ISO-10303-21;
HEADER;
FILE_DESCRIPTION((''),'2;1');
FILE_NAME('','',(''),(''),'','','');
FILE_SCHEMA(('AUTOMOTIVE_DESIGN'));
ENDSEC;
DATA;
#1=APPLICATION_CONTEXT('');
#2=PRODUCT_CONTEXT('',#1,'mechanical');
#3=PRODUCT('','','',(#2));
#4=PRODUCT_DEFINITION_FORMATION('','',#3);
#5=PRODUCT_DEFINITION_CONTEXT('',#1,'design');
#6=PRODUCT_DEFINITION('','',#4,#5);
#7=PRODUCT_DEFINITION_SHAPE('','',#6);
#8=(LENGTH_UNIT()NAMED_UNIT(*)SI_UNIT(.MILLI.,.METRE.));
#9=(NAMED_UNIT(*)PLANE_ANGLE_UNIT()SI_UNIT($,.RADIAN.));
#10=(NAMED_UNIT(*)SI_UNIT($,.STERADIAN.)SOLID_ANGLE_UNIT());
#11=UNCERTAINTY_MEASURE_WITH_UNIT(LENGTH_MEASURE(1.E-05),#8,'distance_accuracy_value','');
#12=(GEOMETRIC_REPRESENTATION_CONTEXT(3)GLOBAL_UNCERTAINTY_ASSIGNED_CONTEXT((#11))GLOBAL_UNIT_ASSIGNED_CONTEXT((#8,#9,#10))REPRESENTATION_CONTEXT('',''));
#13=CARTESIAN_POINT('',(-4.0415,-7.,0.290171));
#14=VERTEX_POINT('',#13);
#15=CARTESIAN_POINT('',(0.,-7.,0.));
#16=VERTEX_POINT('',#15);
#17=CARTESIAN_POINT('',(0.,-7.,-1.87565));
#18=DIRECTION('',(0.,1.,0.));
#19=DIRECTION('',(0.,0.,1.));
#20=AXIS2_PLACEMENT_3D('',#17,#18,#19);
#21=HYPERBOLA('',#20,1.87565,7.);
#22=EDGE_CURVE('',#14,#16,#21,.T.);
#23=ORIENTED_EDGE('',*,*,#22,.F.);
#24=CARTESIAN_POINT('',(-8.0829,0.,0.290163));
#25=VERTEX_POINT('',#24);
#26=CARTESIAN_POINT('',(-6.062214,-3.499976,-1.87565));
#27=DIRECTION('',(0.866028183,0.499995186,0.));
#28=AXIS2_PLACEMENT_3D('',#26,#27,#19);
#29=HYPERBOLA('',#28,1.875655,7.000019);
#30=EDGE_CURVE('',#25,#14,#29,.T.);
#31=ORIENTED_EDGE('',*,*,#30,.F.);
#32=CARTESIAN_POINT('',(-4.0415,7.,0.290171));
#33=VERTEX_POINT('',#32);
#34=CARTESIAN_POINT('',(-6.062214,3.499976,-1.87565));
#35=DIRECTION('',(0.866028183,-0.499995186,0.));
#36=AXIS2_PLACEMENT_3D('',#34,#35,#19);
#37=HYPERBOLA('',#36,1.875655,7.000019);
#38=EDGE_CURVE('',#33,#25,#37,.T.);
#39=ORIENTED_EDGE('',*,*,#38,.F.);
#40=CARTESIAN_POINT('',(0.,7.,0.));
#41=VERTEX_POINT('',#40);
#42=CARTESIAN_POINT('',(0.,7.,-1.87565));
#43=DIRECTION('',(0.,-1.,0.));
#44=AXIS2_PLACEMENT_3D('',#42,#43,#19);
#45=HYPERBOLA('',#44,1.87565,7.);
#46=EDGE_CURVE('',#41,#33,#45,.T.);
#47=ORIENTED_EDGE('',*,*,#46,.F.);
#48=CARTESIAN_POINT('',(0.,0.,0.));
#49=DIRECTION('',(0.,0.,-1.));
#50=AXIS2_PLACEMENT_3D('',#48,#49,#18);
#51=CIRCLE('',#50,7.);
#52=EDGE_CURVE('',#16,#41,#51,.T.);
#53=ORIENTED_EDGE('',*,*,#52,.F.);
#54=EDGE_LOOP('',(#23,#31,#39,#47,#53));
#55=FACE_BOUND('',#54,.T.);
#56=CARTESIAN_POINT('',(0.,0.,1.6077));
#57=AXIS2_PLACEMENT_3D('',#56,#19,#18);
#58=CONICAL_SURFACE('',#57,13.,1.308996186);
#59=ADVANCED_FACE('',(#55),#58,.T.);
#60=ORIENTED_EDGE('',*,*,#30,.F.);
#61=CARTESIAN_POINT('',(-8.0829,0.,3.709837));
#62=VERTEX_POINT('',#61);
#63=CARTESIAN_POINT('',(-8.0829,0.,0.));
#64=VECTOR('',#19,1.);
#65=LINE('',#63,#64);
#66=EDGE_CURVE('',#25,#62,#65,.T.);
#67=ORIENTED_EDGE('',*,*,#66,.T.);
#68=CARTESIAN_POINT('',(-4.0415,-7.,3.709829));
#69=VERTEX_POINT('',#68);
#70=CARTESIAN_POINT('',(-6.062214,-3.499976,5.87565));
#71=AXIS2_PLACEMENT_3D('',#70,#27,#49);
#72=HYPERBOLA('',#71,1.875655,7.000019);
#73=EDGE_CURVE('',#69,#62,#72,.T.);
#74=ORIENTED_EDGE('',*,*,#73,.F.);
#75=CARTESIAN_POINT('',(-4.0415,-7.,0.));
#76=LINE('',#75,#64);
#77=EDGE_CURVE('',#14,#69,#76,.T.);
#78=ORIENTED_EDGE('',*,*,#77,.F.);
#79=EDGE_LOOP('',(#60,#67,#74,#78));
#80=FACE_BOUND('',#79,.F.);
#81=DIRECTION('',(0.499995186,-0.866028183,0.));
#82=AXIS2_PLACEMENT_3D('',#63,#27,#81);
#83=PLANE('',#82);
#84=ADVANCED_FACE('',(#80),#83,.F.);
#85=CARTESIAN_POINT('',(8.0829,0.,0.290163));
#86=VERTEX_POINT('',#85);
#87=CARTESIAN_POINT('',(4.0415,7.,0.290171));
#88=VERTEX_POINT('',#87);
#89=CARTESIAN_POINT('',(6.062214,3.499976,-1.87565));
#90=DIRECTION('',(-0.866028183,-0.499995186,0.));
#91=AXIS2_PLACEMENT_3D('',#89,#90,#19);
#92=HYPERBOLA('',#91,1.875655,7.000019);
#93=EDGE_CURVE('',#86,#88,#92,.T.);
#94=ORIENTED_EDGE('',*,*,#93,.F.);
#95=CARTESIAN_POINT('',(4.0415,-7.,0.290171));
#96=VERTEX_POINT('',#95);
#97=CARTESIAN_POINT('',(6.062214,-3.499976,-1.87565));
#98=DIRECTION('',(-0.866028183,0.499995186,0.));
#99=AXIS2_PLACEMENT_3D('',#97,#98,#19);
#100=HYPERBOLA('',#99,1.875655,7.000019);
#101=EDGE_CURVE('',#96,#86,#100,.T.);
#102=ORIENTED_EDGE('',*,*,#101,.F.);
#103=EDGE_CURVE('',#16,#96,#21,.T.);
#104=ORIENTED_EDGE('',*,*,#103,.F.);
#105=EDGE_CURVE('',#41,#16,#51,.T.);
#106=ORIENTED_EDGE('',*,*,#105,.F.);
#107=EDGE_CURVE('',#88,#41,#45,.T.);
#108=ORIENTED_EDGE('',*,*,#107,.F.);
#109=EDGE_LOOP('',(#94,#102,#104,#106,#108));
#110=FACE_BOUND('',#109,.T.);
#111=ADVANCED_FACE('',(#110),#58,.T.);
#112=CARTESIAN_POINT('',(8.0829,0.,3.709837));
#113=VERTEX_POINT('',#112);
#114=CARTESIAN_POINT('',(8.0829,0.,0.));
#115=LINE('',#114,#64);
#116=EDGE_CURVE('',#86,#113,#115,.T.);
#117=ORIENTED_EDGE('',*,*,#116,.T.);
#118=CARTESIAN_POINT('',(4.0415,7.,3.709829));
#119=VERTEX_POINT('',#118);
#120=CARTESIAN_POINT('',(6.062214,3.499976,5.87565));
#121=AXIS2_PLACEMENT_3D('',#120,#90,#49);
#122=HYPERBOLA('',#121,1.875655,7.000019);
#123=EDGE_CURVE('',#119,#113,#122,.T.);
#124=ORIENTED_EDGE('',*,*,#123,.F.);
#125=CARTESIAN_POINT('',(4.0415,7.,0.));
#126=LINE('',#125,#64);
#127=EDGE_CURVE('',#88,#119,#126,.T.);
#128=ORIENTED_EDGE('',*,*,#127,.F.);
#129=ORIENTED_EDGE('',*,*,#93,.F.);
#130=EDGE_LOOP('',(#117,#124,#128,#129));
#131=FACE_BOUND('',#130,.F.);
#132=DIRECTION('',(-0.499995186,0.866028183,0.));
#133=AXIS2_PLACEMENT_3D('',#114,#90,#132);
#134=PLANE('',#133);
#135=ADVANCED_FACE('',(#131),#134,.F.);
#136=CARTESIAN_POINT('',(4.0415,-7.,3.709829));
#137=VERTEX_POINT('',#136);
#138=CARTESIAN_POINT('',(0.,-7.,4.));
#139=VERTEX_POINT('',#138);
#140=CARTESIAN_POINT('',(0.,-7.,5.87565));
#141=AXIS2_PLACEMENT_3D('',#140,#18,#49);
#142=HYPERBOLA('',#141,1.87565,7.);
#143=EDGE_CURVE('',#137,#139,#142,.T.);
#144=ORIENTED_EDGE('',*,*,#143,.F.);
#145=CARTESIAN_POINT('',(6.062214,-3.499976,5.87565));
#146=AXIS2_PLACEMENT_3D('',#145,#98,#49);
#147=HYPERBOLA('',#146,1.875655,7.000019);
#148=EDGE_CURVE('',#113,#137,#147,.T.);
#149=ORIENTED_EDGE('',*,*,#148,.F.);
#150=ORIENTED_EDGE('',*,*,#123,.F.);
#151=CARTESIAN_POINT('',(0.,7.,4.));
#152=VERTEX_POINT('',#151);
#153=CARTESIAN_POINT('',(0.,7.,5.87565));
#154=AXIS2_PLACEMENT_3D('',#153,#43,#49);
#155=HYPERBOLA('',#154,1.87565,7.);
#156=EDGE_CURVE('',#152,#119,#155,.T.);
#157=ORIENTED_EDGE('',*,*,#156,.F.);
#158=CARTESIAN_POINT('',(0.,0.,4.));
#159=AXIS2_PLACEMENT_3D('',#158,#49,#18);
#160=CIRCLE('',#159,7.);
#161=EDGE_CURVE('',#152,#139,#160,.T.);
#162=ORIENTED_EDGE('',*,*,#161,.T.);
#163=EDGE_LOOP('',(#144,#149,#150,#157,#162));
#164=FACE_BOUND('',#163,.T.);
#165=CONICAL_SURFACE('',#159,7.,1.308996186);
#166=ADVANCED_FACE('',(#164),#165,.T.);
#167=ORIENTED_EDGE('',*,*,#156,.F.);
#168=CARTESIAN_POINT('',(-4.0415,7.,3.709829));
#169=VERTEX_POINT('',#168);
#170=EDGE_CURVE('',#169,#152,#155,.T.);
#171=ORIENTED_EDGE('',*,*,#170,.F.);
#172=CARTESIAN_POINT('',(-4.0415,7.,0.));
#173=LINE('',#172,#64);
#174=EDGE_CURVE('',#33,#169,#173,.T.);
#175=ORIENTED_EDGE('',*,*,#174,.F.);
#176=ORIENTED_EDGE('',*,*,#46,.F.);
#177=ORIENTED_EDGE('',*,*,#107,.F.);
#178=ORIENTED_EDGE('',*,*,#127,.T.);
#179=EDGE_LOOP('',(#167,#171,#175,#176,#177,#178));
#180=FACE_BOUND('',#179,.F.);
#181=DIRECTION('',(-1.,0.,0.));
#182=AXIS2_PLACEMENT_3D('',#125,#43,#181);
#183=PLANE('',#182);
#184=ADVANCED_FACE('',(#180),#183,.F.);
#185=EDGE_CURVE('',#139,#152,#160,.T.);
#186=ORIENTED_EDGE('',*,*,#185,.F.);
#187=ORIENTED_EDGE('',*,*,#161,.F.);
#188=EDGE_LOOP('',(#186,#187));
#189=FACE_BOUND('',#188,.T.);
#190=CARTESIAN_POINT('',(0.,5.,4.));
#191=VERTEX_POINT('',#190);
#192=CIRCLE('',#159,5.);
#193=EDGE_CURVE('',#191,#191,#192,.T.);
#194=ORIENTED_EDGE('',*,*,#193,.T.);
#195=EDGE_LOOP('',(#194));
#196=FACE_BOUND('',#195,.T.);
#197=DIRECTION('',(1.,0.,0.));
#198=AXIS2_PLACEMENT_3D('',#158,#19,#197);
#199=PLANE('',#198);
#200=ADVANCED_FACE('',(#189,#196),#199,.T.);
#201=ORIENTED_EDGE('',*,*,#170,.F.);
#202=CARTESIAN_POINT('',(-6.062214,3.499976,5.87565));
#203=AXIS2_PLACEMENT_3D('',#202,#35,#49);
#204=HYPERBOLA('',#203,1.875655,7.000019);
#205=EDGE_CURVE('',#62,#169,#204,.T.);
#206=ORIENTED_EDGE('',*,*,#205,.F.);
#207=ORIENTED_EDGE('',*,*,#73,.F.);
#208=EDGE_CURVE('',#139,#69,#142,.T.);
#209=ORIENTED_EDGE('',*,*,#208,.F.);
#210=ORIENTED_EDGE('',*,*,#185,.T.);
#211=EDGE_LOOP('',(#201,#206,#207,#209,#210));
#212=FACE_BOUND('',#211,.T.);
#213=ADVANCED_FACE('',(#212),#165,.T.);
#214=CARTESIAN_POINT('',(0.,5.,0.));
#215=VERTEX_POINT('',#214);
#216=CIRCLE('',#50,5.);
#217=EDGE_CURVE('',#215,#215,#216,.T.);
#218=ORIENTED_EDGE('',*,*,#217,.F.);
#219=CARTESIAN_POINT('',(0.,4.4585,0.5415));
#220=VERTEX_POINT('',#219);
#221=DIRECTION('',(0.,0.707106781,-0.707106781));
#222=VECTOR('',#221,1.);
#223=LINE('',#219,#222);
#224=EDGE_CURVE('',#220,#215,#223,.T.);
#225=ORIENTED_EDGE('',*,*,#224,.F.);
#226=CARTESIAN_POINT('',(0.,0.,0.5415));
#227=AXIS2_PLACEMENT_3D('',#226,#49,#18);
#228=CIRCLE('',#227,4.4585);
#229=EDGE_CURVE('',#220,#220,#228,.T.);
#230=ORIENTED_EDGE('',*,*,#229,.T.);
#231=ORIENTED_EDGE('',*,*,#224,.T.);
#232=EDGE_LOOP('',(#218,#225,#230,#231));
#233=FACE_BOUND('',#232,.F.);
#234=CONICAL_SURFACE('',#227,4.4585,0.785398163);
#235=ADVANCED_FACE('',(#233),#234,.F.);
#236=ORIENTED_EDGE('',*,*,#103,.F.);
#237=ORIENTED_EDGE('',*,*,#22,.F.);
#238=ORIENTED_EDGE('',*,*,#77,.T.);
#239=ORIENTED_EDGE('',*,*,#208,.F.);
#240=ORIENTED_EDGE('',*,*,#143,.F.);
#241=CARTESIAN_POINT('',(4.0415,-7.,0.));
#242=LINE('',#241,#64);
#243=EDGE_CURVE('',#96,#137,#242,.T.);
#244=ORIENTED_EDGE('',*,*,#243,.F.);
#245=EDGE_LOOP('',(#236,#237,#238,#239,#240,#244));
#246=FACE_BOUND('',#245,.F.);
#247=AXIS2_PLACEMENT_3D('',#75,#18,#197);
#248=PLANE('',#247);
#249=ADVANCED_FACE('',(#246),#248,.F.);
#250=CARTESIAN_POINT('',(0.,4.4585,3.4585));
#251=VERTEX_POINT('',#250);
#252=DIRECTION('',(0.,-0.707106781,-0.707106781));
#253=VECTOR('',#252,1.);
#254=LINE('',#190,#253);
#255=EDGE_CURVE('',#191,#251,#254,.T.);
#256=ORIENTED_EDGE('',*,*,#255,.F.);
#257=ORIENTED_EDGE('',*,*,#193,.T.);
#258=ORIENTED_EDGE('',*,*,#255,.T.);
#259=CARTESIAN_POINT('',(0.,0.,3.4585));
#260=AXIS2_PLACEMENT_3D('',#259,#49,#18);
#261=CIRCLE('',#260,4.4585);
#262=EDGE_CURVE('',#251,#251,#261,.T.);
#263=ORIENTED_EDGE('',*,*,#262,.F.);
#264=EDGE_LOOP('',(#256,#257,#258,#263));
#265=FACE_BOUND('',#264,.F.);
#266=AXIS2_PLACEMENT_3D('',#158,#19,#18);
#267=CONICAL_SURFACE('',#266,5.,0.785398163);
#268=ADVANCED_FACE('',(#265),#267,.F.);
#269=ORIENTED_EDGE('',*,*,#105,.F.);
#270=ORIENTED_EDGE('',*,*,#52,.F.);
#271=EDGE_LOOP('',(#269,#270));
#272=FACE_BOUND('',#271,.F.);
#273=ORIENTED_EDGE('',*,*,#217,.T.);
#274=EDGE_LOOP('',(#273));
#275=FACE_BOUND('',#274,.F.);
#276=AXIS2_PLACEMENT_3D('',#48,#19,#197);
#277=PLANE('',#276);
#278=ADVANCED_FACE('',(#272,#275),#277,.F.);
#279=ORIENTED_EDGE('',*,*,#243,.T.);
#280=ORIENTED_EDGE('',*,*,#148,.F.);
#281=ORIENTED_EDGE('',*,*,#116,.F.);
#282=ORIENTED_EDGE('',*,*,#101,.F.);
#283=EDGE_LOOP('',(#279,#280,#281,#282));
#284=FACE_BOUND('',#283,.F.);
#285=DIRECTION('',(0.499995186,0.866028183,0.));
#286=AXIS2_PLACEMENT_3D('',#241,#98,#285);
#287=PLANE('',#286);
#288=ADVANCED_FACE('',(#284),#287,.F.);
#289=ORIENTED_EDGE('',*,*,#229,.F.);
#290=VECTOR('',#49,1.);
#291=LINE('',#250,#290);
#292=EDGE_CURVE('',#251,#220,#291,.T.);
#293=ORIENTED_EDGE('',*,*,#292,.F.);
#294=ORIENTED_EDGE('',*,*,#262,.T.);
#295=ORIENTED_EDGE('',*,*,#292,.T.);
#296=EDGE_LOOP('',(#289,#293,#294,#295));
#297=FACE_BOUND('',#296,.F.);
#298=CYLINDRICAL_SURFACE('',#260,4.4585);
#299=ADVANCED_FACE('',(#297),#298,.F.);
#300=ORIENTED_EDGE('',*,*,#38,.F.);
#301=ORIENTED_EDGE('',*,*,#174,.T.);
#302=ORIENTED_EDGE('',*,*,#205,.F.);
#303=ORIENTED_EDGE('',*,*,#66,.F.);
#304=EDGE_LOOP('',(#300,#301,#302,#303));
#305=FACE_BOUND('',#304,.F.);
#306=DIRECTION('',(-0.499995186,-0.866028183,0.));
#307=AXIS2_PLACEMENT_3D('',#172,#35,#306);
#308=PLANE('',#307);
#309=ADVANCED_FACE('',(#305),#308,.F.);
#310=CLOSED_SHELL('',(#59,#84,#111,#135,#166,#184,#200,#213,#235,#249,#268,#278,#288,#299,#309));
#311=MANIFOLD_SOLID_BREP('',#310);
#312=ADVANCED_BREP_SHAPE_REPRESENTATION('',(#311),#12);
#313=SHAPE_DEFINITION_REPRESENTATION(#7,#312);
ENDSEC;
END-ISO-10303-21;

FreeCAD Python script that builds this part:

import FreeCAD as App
import Part
import Sketcher
Q = App.Units.Quantity

doc = App.newDocument("Part")
body = doc.addObject("PartDesign::Body", "Body")

# Sketch on XY plane
sketch1 = body.newObject("Sketcher::SketchObject", "Sketch")
sketch1.AttachmentSupport = (doc.getObject("XY_Plane"), [""])
sketch1.MapMode = "FlatFace"
sketch1.addGeometry([
    Part.LineSegment(App.Vector(-4, 7, 0), App.Vector(-8, 0, 0)),  # 0
    Part.LineSegment(App.Vector(-8, 0, 0), App.Vector(-4, -7, 0)),  # 1
    Part.LineSegment(App.Vector(-4, -7, 0), App.Vector(4, -7, 0)),  # 2
    Part.LineSegment(App.Vector(4, -7, 0), App.Vector(8, 0, 0)),  # 3
    Part.LineSegment(App.Vector(8, 0, 0), App.Vector(4, 7, 0)),  # 4
    Part.LineSegment(App.Vector(4, 7, 0), App.Vector(-4, 7, 0)),  # 5
], False)
sketch1.addConstraint([
    Sketcher.Constraint("Coincident", 0, 2, 1, 1),
    Sketcher.Constraint("Coincident", 1, 2, 2, 1),
    Sketcher.Constraint("Coincident", 2, 2, 3, 1),
    Sketcher.Constraint("Coincident", 3, 2, 4, 1),
    Sketcher.Constraint("Coincident", 4, 2, 5, 1),
    Sketcher.Constraint("Coincident", 5, 2, 0, 1),
    Sketcher.Constraint("Horizontal", 2),
    Sketcher.Constraint("Horizontal", 5),
    Sketcher.Constraint("Symmetric", 0, 2, 3, 2, -1, 1),
    Sketcher.Constraint("Symmetric", 1, 2, 4, 2, -1, 1),
    Sketcher.Constraint("PointOnObject", 0, 2, -1),
    Sketcher.Constraint("Parallel", 0, 3),
    Sketcher.Constraint("Vertical", 2, 2, 4, 2),
    Sketcher.Constraint("Angle", 0, Q("-119.9997 deg")),
    Sketcher.Constraint("DistanceY", 1, 2, -1, 1, Q("7 mm")),
    Sketcher.Constraint("DistanceX", 2, 1, 2, 2, Q("8.083 mm")),
])
pad1 = body.newObject("PartDesign::Pad", "Pad")
pad1.Profile = sketch1
pad1.Length = 4

# Sketch on YZ plane
sketch2 = body.newObject("Sketcher::SketchObject", "Sketch001")
sketch2.AttachmentSupport = (doc.getObject("YZ_Plane"), [""])
sketch2.MapMode = "FlatFace"
sketch2.addGeometry([
    Part.LineSegment(App.Vector(0, 4, 0), App.Vector(0, 0, 0)),  # 0
    Part.LineSegment(App.Vector(0, 0, 0), App.Vector(5, 0, 0)),  # 1
    Part.LineSegment(App.Vector(5, 0, 0), App.Vector(4.5, 0.5, 0)),  # 2
    Part.LineSegment(App.Vector(4.5, 0.5, 0), App.Vector(4.5, 3.5, 0)),  # 3
    Part.LineSegment(App.Vector(4.5, 3.5, 0), App.Vector(5, 4, 0)),  # 4
    Part.LineSegment(App.Vector(5, 4, 0), App.Vector(0, 4, 0)),  # 5
], False)
sketch2.addConstraint([
    Sketcher.Constraint("Coincident", 0, 2, 1, 1),
    Sketcher.Constraint("Coincident", 1, 2, 2, 1),
    Sketcher.Constraint("Coincident", 2, 2, 3, 1),
    Sketcher.Constraint("Coincident", 3, 2, 4, 1),
    Sketcher.Constraint("Coincident", 4, 2, 5, 1),
    Sketcher.Constraint("Coincident", 5, 2, 0, 1),
    Sketcher.Constraint("Vertical", 0),
    Sketcher.Constraint("Horizontal", 1),
    Sketcher.Constraint("Vertical", 3),
    Sketcher.Constraint("Horizontal", 5),
    Sketcher.Constraint("Coincident", 0, 2, -1, 1),
    Sketcher.Constraint("Perpendicular", 2, 4),
    Sketcher.Constraint("Vertical", 1, 2, 4, 2),
    Sketcher.Constraint("Equal", 2, 4),
    Sketcher.Constraint("DistanceX", 1, 1, 1, 2, Q("5 mm")),
    Sketcher.Constraint("DistanceY", 0, 2, 0, 1, Q("4 mm")),
    Sketcher.Constraint("DistanceY", 3, 1, 3, 2, Q("2.917 mm")),
])
groove = body.newObject("PartDesign::Groove", "Groove")
groove.Profile = sketch2
groove.ReferenceAxis = (sketch2, ["V_Axis"])
groove.Angle = 360

# Sketch on YZ plane
sketch3 = body.newObject("Sketcher::SketchObject", "Sketch002")
sketch3.AttachmentSupport = (doc.getObject("YZ_Plane"), [""])
sketch3.MapMode = "FlatFace"
sketch3.addGeometry([
    Part.LineSegment(App.Vector(17, 0, 0), App.Vector(17, 4, 0)),  # 0
    Part.LineSegment(App.Vector(17, 4, 0), App.Vector(7, 4, 0)),  # 1
    Part.LineSegment(App.Vector(7, 4, 0), App.Vector(13, 2.4, 0)),  # 2
    Part.LineSegment(App.Vector(13, 2.4, 0), App.Vector(13, 1.6, 0)),  # 3
    Part.LineSegment(App.Vector(13, 1.6, 0), App.Vector(7, 0, 0)),  # 4
    Part.LineSegment(App.Vector(7, 0, 0), App.Vector(17, 0, 0)),  # 5
], False)
sketch3.addConstraint([
    Sketcher.Constraint("Coincident", 0, 2, 1, 1),
    Sketcher.Constraint("Coincident", 1, 2, 2, 1),
    Sketcher.Constraint("Coincident", 2, 2, 3, 1),
    Sketcher.Constraint("Coincident", 3, 2, 4, 1),
    Sketcher.Constraint("Coincident", 4, 2, 5, 1),
    Sketcher.Constraint("Coincident", 5, 2, 0, 1),
    Sketcher.Constraint("Vertical", 0),
    Sketcher.Constraint("Horizontal", 1),
    Sketcher.Constraint("Vertical", 3),
    Sketcher.Constraint("Horizontal", 5),
    Sketcher.Constraint("PointOnObject", 4, 2, -1),
    Sketcher.Constraint("Vertical", 1, 2, 4, 2),
    Sketcher.Constraint("Equal", 2, 4),
    Sketcher.Constraint("DistanceX", 1, 2, 1, 1, Q("10 mm")),
    Sketcher.Constraint("DistanceY", 0, 1, 0, 2, Q("4 mm")),
    Sketcher.Constraint("Angle", 2, Q("-15 deg")),
    Sketcher.Constraint("DistanceX", -1, 1, 0, 2, Q("17 mm")),
    Sketcher.Constraint("DistanceX", -1, 1, 2, 2, Q("13 mm")),
])
groove2 = body.newObject("PartDesign::Groove", "Groove001")
groove2.Profile = sketch3
groove2.ReferenceAxis = (sketch3, ["V_Axis"])
groove2.Angle = 360

doc.recompute()
